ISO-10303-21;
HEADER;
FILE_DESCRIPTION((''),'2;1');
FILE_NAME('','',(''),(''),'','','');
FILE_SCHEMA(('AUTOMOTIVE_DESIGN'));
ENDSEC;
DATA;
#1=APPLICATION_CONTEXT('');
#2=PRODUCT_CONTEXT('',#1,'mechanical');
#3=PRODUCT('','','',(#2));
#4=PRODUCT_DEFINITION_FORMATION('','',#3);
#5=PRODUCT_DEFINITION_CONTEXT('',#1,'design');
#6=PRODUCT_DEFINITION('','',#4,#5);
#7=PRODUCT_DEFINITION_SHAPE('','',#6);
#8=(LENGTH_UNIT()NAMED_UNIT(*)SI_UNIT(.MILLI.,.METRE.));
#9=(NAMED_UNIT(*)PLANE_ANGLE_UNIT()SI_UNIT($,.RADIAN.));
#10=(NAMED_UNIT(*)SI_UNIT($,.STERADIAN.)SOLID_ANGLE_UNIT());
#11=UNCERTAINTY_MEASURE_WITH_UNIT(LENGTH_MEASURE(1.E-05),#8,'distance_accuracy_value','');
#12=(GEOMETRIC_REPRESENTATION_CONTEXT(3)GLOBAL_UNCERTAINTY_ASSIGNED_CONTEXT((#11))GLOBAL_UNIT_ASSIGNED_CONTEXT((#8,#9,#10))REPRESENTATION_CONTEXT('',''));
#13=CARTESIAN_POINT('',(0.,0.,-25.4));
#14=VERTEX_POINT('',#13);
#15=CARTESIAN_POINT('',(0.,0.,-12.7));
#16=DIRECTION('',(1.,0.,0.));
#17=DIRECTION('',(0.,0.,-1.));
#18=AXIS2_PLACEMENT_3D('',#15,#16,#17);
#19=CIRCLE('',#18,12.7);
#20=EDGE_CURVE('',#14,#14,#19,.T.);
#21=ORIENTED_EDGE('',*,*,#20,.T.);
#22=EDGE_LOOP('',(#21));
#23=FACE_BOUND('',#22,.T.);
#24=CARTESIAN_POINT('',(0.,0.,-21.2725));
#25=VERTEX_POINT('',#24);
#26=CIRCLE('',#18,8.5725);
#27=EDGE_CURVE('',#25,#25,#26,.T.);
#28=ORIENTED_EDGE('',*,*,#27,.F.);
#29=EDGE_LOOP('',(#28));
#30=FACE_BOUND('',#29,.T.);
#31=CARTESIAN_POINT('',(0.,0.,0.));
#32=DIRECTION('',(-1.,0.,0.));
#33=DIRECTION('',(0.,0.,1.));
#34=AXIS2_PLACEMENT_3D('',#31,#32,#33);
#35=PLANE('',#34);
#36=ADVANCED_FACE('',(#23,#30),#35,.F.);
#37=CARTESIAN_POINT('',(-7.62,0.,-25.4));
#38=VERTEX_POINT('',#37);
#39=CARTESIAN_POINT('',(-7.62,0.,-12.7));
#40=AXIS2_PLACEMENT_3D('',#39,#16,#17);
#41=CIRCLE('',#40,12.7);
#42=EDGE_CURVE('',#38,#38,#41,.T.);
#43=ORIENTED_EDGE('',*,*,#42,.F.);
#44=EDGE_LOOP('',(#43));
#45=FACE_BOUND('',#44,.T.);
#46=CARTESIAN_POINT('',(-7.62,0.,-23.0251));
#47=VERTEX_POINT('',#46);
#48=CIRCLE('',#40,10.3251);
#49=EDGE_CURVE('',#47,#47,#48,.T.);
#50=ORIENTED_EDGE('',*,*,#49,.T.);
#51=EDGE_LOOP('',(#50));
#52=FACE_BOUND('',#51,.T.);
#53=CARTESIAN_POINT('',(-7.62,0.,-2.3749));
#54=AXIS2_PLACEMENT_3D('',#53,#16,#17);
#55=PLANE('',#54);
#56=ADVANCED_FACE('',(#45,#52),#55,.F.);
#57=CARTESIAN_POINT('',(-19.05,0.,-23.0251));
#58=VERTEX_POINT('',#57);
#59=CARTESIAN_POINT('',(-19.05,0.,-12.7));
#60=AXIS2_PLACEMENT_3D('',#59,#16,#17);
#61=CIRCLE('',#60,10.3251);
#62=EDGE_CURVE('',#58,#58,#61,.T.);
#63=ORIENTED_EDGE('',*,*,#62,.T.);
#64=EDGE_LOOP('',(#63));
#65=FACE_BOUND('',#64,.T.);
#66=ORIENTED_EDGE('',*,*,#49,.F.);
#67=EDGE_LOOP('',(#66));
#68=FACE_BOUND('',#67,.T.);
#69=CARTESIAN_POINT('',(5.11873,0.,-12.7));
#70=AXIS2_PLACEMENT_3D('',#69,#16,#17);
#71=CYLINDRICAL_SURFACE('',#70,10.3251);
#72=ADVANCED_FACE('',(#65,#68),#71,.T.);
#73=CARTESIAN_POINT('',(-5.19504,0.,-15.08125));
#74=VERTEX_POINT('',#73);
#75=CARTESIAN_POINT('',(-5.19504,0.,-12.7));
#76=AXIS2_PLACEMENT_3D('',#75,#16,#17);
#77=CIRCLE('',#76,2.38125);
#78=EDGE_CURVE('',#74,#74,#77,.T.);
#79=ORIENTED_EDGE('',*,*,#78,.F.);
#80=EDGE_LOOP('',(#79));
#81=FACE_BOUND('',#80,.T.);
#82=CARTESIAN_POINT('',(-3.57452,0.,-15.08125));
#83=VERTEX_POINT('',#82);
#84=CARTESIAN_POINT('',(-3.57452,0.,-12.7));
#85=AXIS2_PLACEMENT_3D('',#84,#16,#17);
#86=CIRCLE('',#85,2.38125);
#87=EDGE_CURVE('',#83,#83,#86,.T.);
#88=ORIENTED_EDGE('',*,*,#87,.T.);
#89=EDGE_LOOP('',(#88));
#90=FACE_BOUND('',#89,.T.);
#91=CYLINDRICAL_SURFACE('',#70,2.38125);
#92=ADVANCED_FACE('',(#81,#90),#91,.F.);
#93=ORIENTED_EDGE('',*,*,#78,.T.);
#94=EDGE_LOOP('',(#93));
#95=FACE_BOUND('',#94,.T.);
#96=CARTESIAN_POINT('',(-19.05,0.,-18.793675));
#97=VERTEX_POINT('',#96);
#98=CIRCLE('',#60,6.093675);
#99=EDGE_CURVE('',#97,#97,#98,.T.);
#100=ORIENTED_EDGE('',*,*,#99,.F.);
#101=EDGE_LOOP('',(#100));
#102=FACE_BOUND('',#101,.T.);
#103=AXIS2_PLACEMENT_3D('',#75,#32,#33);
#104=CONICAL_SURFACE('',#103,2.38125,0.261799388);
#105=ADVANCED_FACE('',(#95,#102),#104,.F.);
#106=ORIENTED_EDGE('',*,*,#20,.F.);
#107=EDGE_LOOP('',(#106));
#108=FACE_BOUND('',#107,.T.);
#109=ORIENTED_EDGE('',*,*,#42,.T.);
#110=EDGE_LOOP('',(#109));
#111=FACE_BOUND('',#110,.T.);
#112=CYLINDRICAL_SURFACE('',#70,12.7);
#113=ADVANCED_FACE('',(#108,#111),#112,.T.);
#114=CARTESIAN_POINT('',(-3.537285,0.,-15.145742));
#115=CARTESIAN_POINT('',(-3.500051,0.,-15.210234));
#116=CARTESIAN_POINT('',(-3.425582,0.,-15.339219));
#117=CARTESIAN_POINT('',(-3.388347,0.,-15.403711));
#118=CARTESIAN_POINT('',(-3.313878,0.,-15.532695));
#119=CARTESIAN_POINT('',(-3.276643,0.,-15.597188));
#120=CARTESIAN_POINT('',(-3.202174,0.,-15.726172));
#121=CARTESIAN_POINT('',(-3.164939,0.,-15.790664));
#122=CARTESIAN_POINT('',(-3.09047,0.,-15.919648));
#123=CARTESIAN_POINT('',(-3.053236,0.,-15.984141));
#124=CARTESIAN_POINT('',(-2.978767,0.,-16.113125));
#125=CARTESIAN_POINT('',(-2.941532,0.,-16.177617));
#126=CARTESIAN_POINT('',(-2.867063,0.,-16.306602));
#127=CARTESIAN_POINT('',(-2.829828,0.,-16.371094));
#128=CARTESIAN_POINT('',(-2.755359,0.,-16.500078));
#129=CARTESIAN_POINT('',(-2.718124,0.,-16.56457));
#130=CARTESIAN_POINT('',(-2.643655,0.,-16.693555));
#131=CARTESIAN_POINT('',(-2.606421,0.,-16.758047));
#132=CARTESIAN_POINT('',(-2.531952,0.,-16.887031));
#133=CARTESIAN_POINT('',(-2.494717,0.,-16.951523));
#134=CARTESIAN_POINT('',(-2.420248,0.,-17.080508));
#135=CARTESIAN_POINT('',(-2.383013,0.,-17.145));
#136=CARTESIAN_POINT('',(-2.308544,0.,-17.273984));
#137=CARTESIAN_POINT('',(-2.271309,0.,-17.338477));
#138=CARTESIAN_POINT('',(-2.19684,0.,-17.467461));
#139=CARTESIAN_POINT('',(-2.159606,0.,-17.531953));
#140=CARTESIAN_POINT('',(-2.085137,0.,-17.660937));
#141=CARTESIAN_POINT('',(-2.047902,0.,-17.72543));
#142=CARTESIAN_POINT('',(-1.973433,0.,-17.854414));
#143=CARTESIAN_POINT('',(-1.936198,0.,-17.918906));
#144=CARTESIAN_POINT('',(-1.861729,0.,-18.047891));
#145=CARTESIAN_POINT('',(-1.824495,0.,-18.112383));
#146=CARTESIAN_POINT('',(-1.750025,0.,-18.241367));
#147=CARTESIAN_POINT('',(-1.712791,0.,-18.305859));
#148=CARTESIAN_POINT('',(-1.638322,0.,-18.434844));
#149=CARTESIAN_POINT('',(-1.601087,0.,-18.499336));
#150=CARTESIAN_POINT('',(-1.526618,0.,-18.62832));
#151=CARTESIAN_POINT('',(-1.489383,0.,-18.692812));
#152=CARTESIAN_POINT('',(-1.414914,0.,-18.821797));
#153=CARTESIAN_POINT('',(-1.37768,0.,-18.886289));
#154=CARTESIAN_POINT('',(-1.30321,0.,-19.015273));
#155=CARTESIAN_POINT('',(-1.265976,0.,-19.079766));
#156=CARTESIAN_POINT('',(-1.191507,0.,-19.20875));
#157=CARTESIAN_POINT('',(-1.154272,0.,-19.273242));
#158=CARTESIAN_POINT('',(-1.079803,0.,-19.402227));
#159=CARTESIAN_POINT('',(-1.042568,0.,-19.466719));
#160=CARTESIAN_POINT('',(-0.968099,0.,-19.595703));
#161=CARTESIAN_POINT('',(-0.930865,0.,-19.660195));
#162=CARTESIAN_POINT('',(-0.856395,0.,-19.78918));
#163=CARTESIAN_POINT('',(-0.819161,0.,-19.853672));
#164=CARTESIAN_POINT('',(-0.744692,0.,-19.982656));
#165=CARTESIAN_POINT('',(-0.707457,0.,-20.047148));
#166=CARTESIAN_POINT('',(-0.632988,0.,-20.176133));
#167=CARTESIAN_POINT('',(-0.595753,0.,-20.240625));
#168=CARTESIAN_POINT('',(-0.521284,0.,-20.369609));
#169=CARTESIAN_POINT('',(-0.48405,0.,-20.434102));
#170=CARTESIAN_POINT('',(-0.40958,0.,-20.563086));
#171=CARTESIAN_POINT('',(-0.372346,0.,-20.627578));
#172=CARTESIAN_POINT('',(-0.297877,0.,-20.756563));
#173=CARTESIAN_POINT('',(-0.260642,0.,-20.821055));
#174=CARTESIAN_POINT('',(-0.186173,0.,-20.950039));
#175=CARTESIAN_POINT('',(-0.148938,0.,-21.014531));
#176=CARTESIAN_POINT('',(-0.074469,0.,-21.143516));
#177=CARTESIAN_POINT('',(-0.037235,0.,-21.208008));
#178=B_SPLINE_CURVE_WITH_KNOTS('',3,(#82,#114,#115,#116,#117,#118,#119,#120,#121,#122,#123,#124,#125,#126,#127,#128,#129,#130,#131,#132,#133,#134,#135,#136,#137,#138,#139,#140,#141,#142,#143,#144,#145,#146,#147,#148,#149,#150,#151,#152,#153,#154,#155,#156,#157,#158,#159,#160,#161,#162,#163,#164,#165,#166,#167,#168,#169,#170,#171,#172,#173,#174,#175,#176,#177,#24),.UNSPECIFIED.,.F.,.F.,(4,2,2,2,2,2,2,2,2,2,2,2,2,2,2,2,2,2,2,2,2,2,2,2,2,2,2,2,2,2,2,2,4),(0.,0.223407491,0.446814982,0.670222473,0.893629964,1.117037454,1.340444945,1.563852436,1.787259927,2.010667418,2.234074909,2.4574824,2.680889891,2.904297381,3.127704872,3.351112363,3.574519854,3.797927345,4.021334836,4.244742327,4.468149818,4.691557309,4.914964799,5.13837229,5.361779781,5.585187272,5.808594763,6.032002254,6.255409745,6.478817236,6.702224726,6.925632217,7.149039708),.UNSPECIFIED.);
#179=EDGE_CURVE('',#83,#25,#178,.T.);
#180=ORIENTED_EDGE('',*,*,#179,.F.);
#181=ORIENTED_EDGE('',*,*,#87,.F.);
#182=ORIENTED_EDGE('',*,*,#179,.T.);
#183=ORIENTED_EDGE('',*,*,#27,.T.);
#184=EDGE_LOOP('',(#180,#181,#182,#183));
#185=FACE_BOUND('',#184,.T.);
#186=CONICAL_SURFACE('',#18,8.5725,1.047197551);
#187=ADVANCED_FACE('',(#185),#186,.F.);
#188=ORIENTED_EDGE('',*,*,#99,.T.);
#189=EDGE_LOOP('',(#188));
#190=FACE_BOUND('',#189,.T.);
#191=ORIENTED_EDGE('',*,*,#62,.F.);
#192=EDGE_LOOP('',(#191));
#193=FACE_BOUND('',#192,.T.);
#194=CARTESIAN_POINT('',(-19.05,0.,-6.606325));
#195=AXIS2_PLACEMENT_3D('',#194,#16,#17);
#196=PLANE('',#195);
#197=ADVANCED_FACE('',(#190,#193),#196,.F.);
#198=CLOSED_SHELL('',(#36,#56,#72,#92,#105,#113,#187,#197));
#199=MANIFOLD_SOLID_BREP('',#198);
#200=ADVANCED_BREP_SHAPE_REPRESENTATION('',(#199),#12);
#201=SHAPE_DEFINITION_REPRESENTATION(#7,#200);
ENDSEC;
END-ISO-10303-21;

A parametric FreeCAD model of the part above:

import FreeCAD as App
import Part
import Sketcher
Q = App.Units.Quantity


def add_polygon(sketch, points):
    """Adds a closed chain of lines whose ends are joined by coincident constraints."""
    first, n = sketch.GeometryCount, len(points)
    for a, b in zip(points, points[1:] + points[:1]):
        sketch.addGeometry(Part.LineSegment(App.Vector(*a, 0), App.Vector(*b, 0)), False)
    for i in range(n):
        sketch.addConstraint(Sketcher.Constraint("Coincident", first + i, 2, first + (i + 1) % n, 1))

doc = App.newDocument("Part")
params = doc.addObject("Spreadsheet::Sheet", "Params")
for row, (alias, value) in enumerate([
    ("sketch1_width", "0.3 in"),
    ("sketch1_width2", "0.45 in"),
    ("revolution_angle", "360 deg"),
], start=1):
    params.set(f"A{row}", alias)
    params.set(f"B{row}", "=" + value)
    params.setAlias(f"B{row}", alias)

body = doc.addObject("PartDesign::Body", "Body")

sketch1 = doc.addObject("Sketcher::SketchObject", "Sketch")
body.addObject(sketch1)
sketch1.AttachmentSupport = (doc.XZ_Plane, [""])
sketch1.MapMode = "FlatFace"
add_polygon(sketch1, [(0, 0), (0, -4.1), (-3.6, -10.3), (-5.2, -10.3), (-19.1, -6.6), (-19.1, -2.4), (-7.6, -2.4), (-7.6, 0)])
sketch1.addGeometry(Part.LineSegment(App.Vector(0, -12.7, 0), App.Vector(-19.1, -12.7, 0)), True)
sketch1.addConstraint([
    Sketcher.Constraint("Vertical", 0),
    Sketcher.Constraint("Horizontal", 2),
    Sketcher.Constraint("Vertical", 4),
    Sketcher.Constraint("Horizontal", 5),
    Sketcher.Constraint("Vertical", 6),
    Sketcher.Constraint("Horizontal", 7),
    Sketcher.Constraint("Horizontal", 8),
    Sketcher.Constraint("Coincident", 7, 2, -1, 1),
    Sketcher.Constraint("PointOnObject", 8, 1, -2),
    Sketcher.Constraint("Vertical", 4, 2, 8, 2),
    Sketcher.Constraint("DistanceX", 7, 1, 7, 2, Q("0.3 in")),
    Sketcher.Constraint("Angle", 1, Q("-120 deg")),
    Sketcher.Constraint("Angle", 3, Q("165 deg")),
    Sketcher.Constraint("DistanceX", 5, 1, 5, 2, Q("0.45 in")),
    Sketcher.Constraint("DistanceY", 8, 1, -1, 1, Q("0.5 in")),
    Sketcher.Constraint("DistanceX", 2, 2, 2, 1, Q("0.0638 in")),
    Sketcher.Constraint("DistanceY", 0, 2, 0, 1, Q("0.1625 in")),
    Sketcher.Constraint("DistanceY", 6, 1, 6, 2, Q("0.0935 in")),
    Sketcher.Constraint("DistanceY", 1, 2, -1, 1, Q("0.40625 in")),
])
sketch1.setExpression("Constraints[18]", "Params.sketch1_width")
sketch1.setExpression("Constraints[21]", "Params.sketch1_width2")
revolution = doc.addObject("PartDesign::Revolution", "Revolution")
body.addObject(revolution)
revolution.Profile = sketch1
revolution.ReferenceAxis = (sketch1, ["Axis0"])
revolution.setExpression("Angle", "Params.revolution_angle")

doc.recompute()
